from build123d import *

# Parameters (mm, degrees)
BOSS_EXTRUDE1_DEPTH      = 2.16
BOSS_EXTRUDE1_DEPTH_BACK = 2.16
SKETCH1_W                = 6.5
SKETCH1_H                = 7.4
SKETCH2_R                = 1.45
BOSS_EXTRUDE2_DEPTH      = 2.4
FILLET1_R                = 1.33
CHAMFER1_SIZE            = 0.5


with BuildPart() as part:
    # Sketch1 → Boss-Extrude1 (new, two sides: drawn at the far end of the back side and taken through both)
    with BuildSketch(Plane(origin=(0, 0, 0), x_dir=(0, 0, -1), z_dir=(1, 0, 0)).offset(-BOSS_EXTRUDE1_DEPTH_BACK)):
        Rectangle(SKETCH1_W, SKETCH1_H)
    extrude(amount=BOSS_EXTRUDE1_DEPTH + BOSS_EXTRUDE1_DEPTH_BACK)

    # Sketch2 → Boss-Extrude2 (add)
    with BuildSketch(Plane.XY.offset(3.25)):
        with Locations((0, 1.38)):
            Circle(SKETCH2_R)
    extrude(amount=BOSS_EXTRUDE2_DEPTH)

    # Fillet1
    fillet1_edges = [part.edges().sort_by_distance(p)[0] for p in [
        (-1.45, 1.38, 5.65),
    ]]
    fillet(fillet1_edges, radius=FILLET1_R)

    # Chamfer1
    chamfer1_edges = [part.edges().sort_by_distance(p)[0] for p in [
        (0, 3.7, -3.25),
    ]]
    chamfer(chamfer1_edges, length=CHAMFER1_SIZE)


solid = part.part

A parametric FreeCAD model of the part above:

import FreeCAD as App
import Part
import Sketcher
Q = App.Units.Quantity


def edges_at(feature, points):
    """Names of the edges that pass closest to the given points."""
    edges = feature.Shape.Edges
    near = lambda p: min(range(len(edges)), key=lambda i: edges[i].distToShape(Part.Vertex(*p))[0])
    return sorted({f"Edge{near(p) + 1}" for p in points})


def add_polygon(sketch, points):
    """Adds a closed chain of lines whose ends are joined by coincident constraints."""
    first, n = sketch.GeometryCount, len(points)
    for a, b in zip(points, points[1:] + points[:1]):
        sketch.addGeometry(Part.LineSegment(App.Vector(*a, 0), App.Vector(*b, 0)), False)
    for i in range(n):
        sketch.addConstraint(Sketcher.Constraint("Coincident", first + i, 2, first + (i + 1) % n, 1))

doc = App.newDocument("Part")
params = doc.addObject("Spreadsheet::Sheet", "Params")
for row, (alias, value) in enumerate([
    ("sketch1_width", "7.4 mm"),
    ("sketch1_height", "6.5 mm"),
    ("pad1_length", "2.16 mm"),
    ("pad1_length2", "2.16 mm"),
    ("sketch2_diameter", "2.9 mm"),
    ("pad2_length", "2.4 mm"),
    ("fillet_radius", "1.33 mm"),
    ("chamfer_size", "0.5 mm"),
], start=1):
    params.set(f"A{row}", alias)
    params.set(f"B{row}", "=" + value)
    params.setAlias(f"B{row}", alias)

body = doc.addObject("PartDesign::Body", "Body")

sketch1 = doc.addObject("Sketcher::SketchObject", "Sketch")
body.addObject(sketch1)
sketch1.AttachmentSupport = (doc.YZ_Plane, [""])
sketch1.MapMode = "FlatFace"
add_polygon(sketch1, [(4, 3), (-4, 3), (-4, -3), (4, -3)])
sketch1.addConstraint([
    Sketcher.Constraint("Horizontal", 0),
    Sketcher.Constraint("Vertical", 1),
    Sketcher.Constraint("Horizontal", 2),
    Sketcher.Constraint("Vertical", 3),
    Sketcher.Constraint("Symmetric", 0, 2, 2, 2, -1, 1),
    Sketcher.Constraint("DistanceX", 0, 2, 0, 1, Q("7.4 mm")),
    Sketcher.Constraint("DistanceY", 1, 2, 1, 1, Q("6.5 mm")),
])
sketch1.setExpression("Constraints[9]", "Params.sketch1_width")
sketch1.setExpression("Constraints[10]", "Params.sketch1_height")
pad1 = doc.addObject("PartDesign::Pad", "Pad")
body.addObject(pad1)
pad1.Profile = sketch1
pad1.Type = "TwoLengths"
pad1.setExpression("Length", "Params.pad1_length")
pad1.setExpression("Length2", "Params.pad1_length2")

sketch2 = doc.addObject("Sketcher::SketchObject", "Sketch001")
body.addObject(sketch2)
sketch2.AttachmentSupport = (doc.XY_Plane, [""])
sketch2.MapMode = "FlatFace"
sketch2.AttachmentOffset = App.Placement(App.Vector(0, 0, 3.25), App.Rotation())
sketch2.addGeometry(Part.Circle(App.Vector(0, 1.4, 0), App.Vector(0, 0, 1), 1.4), False)
sketch2.addConstraint([
    Sketcher.Constraint("PointOnObject", 0, 3, -2),
    Sketcher.Constraint("Diameter", 0, Q("2.9 mm")),
    Sketcher.Constraint("DistanceY", -1, 1, 0, 3, Q("1.38 mm")),
])
sketch2.setExpression("Constraints[1]", "Params.sketch2_diameter")
pad2 = doc.addObject("PartDesign::Pad", "Pad001")
body.addObject(pad2)
pad2.Profile = sketch2
pad2.setExpression("Length", "Params.pad2_length")
doc.recompute()

fillet = doc.addObject("PartDesign::Fillet", "Fillet")
body.addObject(fillet)
fillet.Base = (pad2, edges_at(pad2, [(-1.45, 1.38, 5.65)]))
fillet.setExpression("Radius", "Params.fillet_radius")
doc.recompute()

chamfer = doc.addObject("PartDesign::Chamfer", "Chamfer")
body.addObject(chamfer)
chamfer.Base = (fillet, edges_at(fillet, [(0, 3.7, -3.25)]))
chamfer.setExpression("Size", "Params.chamfer_size")

doc.recompute()
